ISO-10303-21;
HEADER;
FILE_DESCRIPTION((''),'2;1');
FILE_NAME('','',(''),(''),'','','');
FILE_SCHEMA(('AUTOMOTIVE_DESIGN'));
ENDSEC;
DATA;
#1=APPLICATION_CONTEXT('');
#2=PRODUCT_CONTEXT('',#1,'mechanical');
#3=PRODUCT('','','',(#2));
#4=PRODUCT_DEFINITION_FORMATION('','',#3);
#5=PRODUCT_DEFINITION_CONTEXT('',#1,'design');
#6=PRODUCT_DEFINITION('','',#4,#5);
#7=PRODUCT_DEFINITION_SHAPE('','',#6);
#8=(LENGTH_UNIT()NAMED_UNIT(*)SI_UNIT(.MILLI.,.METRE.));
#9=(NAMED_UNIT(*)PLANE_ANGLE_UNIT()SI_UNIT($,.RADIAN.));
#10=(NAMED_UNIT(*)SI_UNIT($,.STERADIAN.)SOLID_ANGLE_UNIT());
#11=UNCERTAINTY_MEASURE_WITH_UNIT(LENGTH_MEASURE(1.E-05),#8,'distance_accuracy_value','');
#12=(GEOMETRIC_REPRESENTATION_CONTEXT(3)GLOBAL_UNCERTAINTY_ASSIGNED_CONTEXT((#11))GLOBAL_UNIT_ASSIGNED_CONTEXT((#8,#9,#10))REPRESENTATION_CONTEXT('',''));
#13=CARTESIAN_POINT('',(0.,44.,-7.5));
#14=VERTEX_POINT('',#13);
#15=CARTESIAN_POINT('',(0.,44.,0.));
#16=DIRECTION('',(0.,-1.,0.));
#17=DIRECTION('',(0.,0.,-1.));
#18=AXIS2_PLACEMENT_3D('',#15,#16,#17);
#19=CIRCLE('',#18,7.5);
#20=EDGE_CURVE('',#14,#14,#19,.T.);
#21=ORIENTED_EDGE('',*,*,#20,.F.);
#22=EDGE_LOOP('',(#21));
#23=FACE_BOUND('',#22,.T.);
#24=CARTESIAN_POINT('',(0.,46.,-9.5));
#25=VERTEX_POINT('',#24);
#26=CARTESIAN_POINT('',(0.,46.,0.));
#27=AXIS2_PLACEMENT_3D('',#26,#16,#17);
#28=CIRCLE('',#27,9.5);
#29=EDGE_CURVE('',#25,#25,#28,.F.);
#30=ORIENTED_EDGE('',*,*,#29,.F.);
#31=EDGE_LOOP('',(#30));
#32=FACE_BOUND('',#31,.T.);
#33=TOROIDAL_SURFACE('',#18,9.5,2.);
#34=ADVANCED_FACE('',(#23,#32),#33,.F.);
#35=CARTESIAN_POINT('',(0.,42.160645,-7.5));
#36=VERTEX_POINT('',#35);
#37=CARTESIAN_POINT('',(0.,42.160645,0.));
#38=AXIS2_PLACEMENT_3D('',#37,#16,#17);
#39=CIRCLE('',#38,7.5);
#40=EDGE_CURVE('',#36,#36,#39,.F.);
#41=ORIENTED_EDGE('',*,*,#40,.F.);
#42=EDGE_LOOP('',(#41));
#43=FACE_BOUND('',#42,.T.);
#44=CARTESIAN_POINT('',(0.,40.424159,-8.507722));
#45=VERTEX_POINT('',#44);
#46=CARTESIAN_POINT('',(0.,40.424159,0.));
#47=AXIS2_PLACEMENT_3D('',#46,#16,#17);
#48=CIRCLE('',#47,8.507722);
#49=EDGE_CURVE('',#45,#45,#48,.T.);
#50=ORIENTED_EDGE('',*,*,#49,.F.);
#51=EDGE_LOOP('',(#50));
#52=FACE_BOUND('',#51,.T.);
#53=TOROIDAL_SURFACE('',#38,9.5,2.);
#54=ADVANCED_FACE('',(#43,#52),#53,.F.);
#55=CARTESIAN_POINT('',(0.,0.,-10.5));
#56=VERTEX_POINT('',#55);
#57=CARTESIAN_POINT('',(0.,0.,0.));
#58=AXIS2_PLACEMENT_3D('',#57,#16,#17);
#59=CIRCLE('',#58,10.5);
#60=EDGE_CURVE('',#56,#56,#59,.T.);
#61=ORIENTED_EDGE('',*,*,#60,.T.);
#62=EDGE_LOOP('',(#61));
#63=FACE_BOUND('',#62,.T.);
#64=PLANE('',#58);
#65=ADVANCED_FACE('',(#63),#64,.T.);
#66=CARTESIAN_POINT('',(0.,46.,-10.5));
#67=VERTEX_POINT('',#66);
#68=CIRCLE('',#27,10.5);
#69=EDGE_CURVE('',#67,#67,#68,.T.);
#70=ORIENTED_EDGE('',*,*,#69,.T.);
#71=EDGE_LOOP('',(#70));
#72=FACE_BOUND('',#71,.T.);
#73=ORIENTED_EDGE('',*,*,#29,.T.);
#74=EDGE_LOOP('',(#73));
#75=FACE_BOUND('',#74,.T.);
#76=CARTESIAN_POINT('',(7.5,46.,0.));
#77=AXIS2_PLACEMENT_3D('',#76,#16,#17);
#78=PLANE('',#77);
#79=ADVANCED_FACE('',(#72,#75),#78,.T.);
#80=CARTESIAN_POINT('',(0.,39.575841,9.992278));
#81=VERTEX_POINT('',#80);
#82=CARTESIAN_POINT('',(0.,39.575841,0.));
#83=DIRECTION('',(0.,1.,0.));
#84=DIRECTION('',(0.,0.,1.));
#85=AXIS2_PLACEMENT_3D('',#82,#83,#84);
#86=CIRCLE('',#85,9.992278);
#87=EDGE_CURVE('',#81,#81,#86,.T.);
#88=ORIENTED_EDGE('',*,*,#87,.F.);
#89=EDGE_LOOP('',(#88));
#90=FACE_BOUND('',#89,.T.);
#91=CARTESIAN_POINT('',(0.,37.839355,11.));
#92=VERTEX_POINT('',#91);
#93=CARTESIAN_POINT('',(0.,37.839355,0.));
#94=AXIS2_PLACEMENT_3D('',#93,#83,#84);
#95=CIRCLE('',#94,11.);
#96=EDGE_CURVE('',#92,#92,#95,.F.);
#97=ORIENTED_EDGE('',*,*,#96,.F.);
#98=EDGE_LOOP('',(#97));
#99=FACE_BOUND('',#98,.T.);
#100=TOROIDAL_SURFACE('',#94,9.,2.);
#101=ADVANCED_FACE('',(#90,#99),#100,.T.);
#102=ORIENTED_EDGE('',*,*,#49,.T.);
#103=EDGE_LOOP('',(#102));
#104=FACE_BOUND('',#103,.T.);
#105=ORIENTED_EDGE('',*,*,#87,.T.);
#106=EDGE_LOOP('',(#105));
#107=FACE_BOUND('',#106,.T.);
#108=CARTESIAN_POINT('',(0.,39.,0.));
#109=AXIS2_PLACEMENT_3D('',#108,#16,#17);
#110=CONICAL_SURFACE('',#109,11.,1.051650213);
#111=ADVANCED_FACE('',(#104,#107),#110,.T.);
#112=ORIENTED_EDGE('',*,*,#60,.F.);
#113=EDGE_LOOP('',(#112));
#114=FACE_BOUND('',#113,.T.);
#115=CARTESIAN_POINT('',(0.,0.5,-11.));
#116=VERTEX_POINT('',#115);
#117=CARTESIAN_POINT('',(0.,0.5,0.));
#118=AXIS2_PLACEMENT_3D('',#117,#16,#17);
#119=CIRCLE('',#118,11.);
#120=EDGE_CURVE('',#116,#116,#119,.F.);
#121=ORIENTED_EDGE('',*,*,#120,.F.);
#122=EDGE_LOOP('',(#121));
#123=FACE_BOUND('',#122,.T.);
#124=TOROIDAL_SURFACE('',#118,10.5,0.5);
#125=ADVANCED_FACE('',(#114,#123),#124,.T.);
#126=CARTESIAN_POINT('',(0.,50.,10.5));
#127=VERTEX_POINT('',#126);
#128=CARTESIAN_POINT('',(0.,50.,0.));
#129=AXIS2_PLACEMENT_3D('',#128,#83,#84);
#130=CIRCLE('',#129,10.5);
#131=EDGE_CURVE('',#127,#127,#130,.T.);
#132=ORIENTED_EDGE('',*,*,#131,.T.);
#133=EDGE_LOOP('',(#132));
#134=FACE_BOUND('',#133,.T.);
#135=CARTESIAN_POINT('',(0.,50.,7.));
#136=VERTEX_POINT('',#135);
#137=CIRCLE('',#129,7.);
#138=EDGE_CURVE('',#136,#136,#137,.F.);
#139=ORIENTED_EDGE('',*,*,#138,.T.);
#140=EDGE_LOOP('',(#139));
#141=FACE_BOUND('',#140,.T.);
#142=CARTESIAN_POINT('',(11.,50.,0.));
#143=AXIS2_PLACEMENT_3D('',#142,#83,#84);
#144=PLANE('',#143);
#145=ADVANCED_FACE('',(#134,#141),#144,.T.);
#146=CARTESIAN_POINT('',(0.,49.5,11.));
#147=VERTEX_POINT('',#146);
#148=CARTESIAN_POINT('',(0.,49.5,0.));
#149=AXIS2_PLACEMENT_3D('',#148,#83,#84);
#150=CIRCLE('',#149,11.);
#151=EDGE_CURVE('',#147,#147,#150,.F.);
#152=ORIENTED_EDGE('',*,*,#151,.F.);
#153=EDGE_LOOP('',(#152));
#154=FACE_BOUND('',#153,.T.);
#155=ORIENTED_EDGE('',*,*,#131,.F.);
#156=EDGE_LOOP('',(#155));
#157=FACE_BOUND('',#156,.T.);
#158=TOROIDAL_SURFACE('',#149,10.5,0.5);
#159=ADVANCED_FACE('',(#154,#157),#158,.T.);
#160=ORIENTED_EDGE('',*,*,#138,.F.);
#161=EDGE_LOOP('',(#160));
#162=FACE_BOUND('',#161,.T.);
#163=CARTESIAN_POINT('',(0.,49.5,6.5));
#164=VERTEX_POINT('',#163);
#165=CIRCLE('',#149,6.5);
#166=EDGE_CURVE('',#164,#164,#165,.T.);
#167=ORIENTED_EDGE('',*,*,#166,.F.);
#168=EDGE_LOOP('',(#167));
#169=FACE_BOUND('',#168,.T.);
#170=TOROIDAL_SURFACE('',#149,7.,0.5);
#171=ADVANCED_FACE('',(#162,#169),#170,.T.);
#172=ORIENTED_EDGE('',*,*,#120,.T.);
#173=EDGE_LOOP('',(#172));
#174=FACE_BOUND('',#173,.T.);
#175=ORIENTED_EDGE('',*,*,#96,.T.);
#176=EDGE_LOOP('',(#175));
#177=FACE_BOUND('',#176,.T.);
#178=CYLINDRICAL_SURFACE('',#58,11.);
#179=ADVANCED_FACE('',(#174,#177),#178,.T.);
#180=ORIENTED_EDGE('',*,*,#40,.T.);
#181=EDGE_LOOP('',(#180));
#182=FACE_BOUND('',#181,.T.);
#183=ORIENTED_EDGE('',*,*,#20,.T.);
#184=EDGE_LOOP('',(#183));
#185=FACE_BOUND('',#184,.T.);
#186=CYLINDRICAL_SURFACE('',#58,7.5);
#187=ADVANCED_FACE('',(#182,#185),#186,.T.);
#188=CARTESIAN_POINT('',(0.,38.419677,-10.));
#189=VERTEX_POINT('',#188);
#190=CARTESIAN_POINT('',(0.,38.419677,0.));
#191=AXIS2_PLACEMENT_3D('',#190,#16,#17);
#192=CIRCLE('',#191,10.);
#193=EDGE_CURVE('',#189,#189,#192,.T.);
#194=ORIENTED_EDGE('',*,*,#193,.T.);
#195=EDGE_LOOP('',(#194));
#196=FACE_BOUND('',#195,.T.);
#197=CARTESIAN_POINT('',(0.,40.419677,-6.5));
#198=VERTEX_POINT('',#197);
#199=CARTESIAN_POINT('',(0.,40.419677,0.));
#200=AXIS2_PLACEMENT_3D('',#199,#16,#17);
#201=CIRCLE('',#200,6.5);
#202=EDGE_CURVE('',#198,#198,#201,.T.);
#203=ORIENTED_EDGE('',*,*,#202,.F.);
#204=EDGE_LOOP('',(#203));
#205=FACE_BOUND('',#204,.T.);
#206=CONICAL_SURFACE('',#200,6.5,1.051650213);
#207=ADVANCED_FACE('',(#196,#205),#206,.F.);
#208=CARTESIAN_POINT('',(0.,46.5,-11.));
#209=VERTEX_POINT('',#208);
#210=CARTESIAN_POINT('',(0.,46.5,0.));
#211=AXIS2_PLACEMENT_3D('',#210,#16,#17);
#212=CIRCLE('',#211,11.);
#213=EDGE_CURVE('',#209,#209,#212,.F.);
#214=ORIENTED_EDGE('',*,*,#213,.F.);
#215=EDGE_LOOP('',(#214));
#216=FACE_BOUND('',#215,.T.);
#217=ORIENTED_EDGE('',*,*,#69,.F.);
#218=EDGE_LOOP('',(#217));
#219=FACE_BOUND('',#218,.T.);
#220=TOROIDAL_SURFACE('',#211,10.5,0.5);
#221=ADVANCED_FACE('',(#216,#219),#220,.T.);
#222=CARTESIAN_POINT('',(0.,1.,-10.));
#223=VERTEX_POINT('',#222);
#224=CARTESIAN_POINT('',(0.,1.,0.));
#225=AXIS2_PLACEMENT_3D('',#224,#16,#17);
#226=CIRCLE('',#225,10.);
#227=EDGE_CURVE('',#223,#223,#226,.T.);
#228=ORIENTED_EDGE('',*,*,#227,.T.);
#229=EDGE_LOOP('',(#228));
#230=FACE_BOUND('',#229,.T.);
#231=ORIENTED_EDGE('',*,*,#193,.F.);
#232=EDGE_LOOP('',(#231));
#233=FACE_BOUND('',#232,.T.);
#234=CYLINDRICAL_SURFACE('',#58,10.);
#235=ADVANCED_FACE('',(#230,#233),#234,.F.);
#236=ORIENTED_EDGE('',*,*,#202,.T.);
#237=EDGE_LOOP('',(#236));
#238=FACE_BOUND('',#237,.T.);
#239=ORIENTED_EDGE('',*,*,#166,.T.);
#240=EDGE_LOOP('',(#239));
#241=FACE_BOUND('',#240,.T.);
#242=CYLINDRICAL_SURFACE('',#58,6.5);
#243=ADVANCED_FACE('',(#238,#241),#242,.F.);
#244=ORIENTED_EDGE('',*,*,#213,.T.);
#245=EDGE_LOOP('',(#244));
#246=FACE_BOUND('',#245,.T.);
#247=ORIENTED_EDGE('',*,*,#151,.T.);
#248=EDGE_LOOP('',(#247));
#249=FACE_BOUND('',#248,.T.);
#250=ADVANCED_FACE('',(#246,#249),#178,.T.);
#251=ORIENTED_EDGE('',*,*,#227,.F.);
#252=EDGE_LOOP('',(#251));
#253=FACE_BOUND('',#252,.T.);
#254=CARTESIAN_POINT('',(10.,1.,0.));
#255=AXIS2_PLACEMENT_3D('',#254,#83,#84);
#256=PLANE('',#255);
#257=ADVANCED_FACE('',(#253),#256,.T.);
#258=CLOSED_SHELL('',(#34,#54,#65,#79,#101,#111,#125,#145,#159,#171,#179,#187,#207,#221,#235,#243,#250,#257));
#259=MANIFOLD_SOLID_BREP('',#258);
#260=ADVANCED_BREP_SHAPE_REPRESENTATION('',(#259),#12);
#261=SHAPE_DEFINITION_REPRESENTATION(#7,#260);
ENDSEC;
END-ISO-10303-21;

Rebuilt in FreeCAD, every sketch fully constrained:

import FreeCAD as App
import Part
import Sketcher


def edges_at(feature, points):
    """Names of the edges that pass closest to the given points."""
    edges = feature.Shape.Edges
    near = lambda p: min(range(len(edges)), key=lambda i: edges[i].distToShape(Part.Vertex(*p))[0])
    return sorted({f"Edge{near(p) + 1}" for p in points})


def add_polygon(sketch, points):
    """Adds a closed chain of lines whose ends are joined by coincident constraints."""
    first, n = sketch.GeometryCount, len(points)
    for a, b in zip(points, points[1:] + points[:1]):
        sketch.addGeometry(Part.LineSegment(App.Vector(*a, 0), App.Vector(*b, 0)), False)
    for i in range(n):
        sketch.addConstraint(Sketcher.Constraint("Coincident", first + i, 2, first + (i + 1) % n, 1))

doc = App.newDocument("Part")
body = doc.addObject("PartDesign::Body", "Body")

sketch1 = body.newObject("Sketcher::SketchObject", "Sketch")
sketch1.AttachmentSupport = (doc.getObject("XY_Plane"), [""])
sketch1.MapMode = "FlatFace"
add_polygon(sketch1, [(0, 0), (11, 0), (11, 39), (7.5, 41), (7.5, 46), (11, 46), (11, 50), (6.5, 50), (6.5, 40.4), (10, 38.4), (10, 1), (0, 1)])
sketch1.addConstraint([
    Sketcher.Constraint("Horizontal", 0),
    Sketcher.Constraint("Vertical", 1),
    Sketcher.Constraint("Vertical", 3),
    Sketcher.Constraint("Horizontal", 4),
    Sketcher.Constraint("Vertical", 5),
    Sketcher.Constraint("Horizontal", 6),
    Sketcher.Constraint("Vertical", 7),
    Sketcher.Constraint("Vertical", 9),
    Sketcher.Constraint("Horizontal", 10),
    Sketcher.Constraint("Vertical", 11),
    Sketcher.Constraint("Coincident", 11, 2, -1, 1),
    Sketcher.Constraint("Parallel", 2, 8),
    Sketcher.Constraint("Vertical", 1, 2, 4, 2),
    Sketcher.Constraint("Equal", 2, 8),
    Sketcher.Constraint("DistanceX", 0, 1, 0, 2, 11.0),
    Sketcher.Constraint("DistanceX", 10, 2, 10, 1, 10.0),
    Sketcher.Constraint("DistanceY", 1, 1, 1, 2, 39.0),
    Sketcher.Constraint("DistanceY", 3, 1, 3, 2, 5.0),
    Sketcher.Constraint("DistanceY", 5, 1, 5, 2, 4.0),
    Sketcher.Constraint("DistanceY", 11, 2, 11, 1, 1.0),
    Sketcher.Constraint("DistanceX", 4, 1, 4, 2, 3.5),
    Sketcher.Constraint("DistanceY", -1, 1, 2, 2, 41.0),
    Sketcher.Constraint("DistanceY", 7, 2, 7, 1, 9.580323),
])
revolution = body.newObject("PartDesign::Revolution", "Revolution")
revolution.Profile = sketch1
revolution.ReferenceAxis = (sketch1, ["V_Axis"])
revolution.Angle = 360
doc.recompute()

fillet = body.newObject("PartDesign::Fillet", "Fillet")
fillet.Base = (revolution, edges_at(revolution, [(0, 46, 7.5), (0, 41, 7.5), (0, 39, 11)]))
fillet.Radius = 2
doc.recompute()

fillet2 = body.newObject("PartDesign::Fillet", "Fillet001")
fillet2.Base = (fillet, edges_at(fillet, [
    (0, 50, 6.5),
    (0, 50, 11),
    (0, 46, 11),
    (0, 0, 11),
]))
fillet2.Radius = 0.5

doc.recompute()
